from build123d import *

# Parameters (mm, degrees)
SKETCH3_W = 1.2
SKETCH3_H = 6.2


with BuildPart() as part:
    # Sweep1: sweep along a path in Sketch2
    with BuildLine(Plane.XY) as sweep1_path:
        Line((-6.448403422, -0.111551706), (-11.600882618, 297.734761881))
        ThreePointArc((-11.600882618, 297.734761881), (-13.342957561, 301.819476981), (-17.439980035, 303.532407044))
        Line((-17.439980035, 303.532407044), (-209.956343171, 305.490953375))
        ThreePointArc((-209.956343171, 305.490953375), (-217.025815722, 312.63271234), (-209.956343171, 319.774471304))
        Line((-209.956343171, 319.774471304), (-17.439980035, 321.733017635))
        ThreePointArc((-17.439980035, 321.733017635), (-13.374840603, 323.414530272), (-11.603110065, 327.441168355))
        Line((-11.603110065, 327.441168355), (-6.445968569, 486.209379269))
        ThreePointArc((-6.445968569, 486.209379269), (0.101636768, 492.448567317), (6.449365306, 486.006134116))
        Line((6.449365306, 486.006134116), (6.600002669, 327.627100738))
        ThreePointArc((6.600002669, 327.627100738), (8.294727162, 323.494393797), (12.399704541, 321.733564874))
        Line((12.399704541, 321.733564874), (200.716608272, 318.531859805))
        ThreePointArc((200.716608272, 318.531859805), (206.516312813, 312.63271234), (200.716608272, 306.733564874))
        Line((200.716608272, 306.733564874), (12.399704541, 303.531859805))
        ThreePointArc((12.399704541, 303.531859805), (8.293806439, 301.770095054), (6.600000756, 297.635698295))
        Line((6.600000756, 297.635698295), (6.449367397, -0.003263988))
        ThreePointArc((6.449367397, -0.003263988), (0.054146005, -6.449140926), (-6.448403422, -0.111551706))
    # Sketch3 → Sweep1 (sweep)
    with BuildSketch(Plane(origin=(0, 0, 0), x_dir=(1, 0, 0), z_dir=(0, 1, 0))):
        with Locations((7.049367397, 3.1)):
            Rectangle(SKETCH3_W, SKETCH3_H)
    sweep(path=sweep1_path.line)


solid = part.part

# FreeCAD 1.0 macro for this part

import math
import FreeCAD as App
import Part
import Sketcher
Q = App.Units.Quantity

doc = App.newDocument("Part")
body = doc.addObject("PartDesign::Body", "Body")

sketch1 = body.newObject("Sketcher::SketchObject", "Sketch")
sketch1.AttachmentSupport = (doc.getObject("XZ_Plane"), [""])
sketch1.MapMode = "FlatFace"
sketch1.addGeometry(Part.LineSegment(App.Vector(6.4, -6.2, 0), App.Vector(6.4, 0, 0)), False)
sketch1.addGeometry(Part.LineSegment(App.Vector(6.4, 0, 0), App.Vector(7.6, 0, 0)), False)
sketch1.addGeometry(Part.LineSegment(App.Vector(7.6, 0, 0), App.Vector(7.6, -6.2, 0)), False)
sketch1.addGeometry(Part.LineSegment(App.Vector(7.6, -6.2, 0), App.Vector(6.4, -6.2, 0)), False)
sketch1.addConstraint(Sketcher.Constraint("Coincident", 0, 2, 1, 1))
sketch1.addConstraint(Sketcher.Constraint("Coincident", 1, 2, 2, 1))
sketch1.addConstraint(Sketcher.Constraint("Coincident", 2, 2, 3, 1))
sketch1.addConstraint(Sketcher.Constraint("Coincident", 3, 2, 0, 1))
sketch1.addConstraint(Sketcher.Constraint("Vertical", 0))
sketch1.addConstraint(Sketcher.Constraint("Horizontal", 1))
sketch1.addConstraint(Sketcher.Constraint("Vertical", 2))
sketch1.addConstraint(Sketcher.Constraint("Horizontal", 3))
sketch1.addConstraint(Sketcher.Constraint("PointOnObject", 0, 2, -1))
sketch1.addConstraint(Sketcher.Constraint("DistanceX", 1, 1, 1, 2, Q("1.2 mm")))
sketch1.addConstraint(Sketcher.Constraint("DistanceY", 0, 1, 0, 2, Q("6.2 mm")))
sketch1.addConstraint(Sketcher.Constraint("DistanceX", -1, 1, 0, 2, Q("6.449367 mm")))

sketch2 = body.newObject("Sketcher::SketchObject", "Sketch001")
sketch2.AttachmentSupport = (doc.getObject("XY_Plane"), [""])
sketch2.MapMode = "FlatFace"
sketch2.addGeometry(Part.LineSegment(App.Vector(-6, 0, 0), App.Vector(-12, 298, 0)), False)
sketch2.addGeometry(Part.ArcOfCircle(Part.Circle(App.Vector(-17, 298, 0), App.Vector(0, 0, 1), 6), math.radians(1), math.radians(89)), False)
sketch2.addGeometry(Part.LineSegment(App.Vector(-17, 304, 0), App.Vector(-210, 305, 0)), False)
sketch2.addGeometry(Part.ArcOfCircle(Part.Circle(App.Vector(-210, 313, 0), App.Vector(0, 0, 1), 7), math.radians(91), math.radians(269)), False)
sketch2.addGeometry(Part.LineSegment(App.Vector(-210, 320, 0), App.Vector(-17, 322, 0)), False)
sketch2.addGeometry(Part.ArcOfCircle(Part.Circle(App.Vector(-17, 328, 0), App.Vector(0, 0, 1), 6), math.radians(-89), math.radians(-2)), False)
sketch2.addGeometry(Part.LineSegment(App.Vector(-12, 327, 0), App.Vector(-6, 486, 0)), False)
sketch2.addGeometry(Part.ArcOfCircle(Part.Circle(App.Vector(0, 486, 0), App.Vector(0, 0, 1), 6), math.radians(0), math.radians(178)), False)
sketch2.addGeometry(Part.LineSegment(App.Vector(6, 486, 0), App.Vector(7, 328, 0)), False)
sketch2.addGeometry(Part.ArcOfCircle(Part.Circle(App.Vector(12, 328, 0), App.Vector(0, 0, 1), 6), math.radians(-180), math.radians(-91)), False)
sketch2.addGeometry(Part.LineSegment(App.Vector(12, 322, 0), App.Vector(201, 319, 0)), False)
sketch2.addGeometry(Part.ArcOfCircle(Part.Circle(App.Vector(201, 313, 0), App.Vector(0, 0, 1), 6), math.radians(-89), math.radians(89)), False)
sketch2.addGeometry(Part.LineSegment(App.Vector(201, 307, 0), App.Vector(12, 304, 0)), False)
sketch2.addGeometry(Part.ArcOfCircle(Part.Circle(App.Vector(12, 298, 0), App.Vector(0, 0, 1), 6), math.radians(91), math.radians(180)), False)
sketch2.addGeometry(Part.LineSegment(App.Vector(7, 298, 0), App.Vector(6, 0, 0)), False)
sketch2.addGeometry(Part.ArcOfCircle(Part.Circle(App.Vector(0, 0, 0), App.Vector(0, 0, 1), 6), math.radians(-179), math.radians(0)), False)
sketch2.addConstraint(Sketcher.Constraint("Tangent", 0, 2, 1, 1))
sketch2.addConstraint(Sketcher.Constraint("Tangent", 1, 2, 2, 1))
sketch2.addConstraint(Sketcher.Constraint("Tangent", 2, 2, 3, 2))
sketch2.addConstraint(Sketcher.Constraint("Tangent", 3, 1, 4, 1))
sketch2.addConstraint(Sketcher.Constraint("Tangent", 4, 2, 5, 1))
sketch2.addConstraint(Sketcher.Constraint("Tangent", 5, 2, 6, 1))
sketch2.addConstraint(Sketcher.Constraint("Tangent", 6, 2, 7, 2))
sketch2.addConstraint(Sketcher.Constraint("Tangent", 7, 1, 8, 1))
sketch2.addConstraint(Sketcher.Constraint("Tangent", 8, 2, 9, 1))
sketch2.addConstraint(Sketcher.Constraint("Tangent", 9, 2, 10, 1))
sketch2.addConstraint(Sketcher.Constraint("Tangent", 10, 2, 11, 2))
sketch2.addConstraint(Sketcher.Constraint("Tangent", 11, 1, 12, 1))
sketch2.addConstraint(Sketcher.Constraint("Tangent", 12, 2, 13, 1))
sketch2.addConstraint(Sketcher.Constraint("Tangent", 13, 2, 14, 1))
sketch2.addConstraint(Sketcher.Constraint("Tangent", 14, 2, 15, 2))
sketch2.addConstraint(Sketcher.Constraint("Tangent", 15, 1, 0, 1))
sketch2.addConstraint(Sketcher.Constraint("Coincident", 15, 3, -1, 1))
sketch2.addConstraint(Sketcher.Constraint("Equal", 1, 5))
sketch2.addConstraint(Sketcher.Constraint("Equal", 5, 9))
sketch2.addConstraint(Sketcher.Constraint("Equal", 9, 11))
sketch2.addConstraint(Sketcher.Constraint("Equal", 11, 13))
sketch2.addConstraint(Sketcher.Constraint("Equal", 7, 15))
sketch2.addConstraint(Sketcher.Constraint("PointOnObject", 7, 3, -2))
sketch2.addConstraint(Sketcher.Constraint("Horizontal", 5, 3, 9, 3))
sketch2.addConstraint(Sketcher.Constraint("Horizontal", 3, 3, 11, 3))
sketch2.addConstraint(Sketcher.Constraint("Horizontal", 1, 3, 13, 3))
sketch2.addConstraint(Sketcher.Constraint("Vertical", 1, 3, 5, 3))
sketch2.addConstraint(Sketcher.Constraint("Vertical", 9, 3, 13, 3))
sketch2.addConstraint(Sketcher.Constraint("Vertical", 2, 2, 3, 1))
sketch2.addConstraint(Sketcher.Constraint("Radius", 1, Q("5.9 mm")))
sketch2.addConstraint(Sketcher.Constraint("DistanceY", -1, 1, 7, 3, Q("486 mm")))
sketch2.addConstraint(Sketcher.Constraint("DistanceY", 1, 3, 3, 3, Q("15 mm")))
sketch2.addConstraint(Sketcher.Constraint("DistanceX", 5, 3, 9, 3, Q("30 mm")))
sketch2.addConstraint(Sketcher.Constraint("DistanceX", 1, 3, -1, 1, Q("17.5 mm")))
sketch2.addConstraint(Sketcher.Constraint("DistanceX", 3, 3, 11, 3, Q("410.5 mm")))
sketch2.addConstraint(Sketcher.Constraint("Radius", 3, Q("7.142129 mm")))
sketch2.addConstraint(Sketcher.Constraint("Radius", 7, Q("6.449368 mm")))
sketch2.addConstraint(Sketcher.Constraint("Distance", 14, Q("297.639 mm")))
sketch2.addConstraint(Sketcher.Constraint("Distance", 10, Q("188.344119 mm")))
doc.recompute()

additivepipe = body.newObject("PartDesign::AdditivePipe", "AdditivePipe")
additivepipe.Profile = sketch1
additivepipe.Spine = (sketch2, ["Edge1", "Edge2", "Edge3", "Edge4", "Edge5", "Edge6", "Edge7", "Edge8", "Edge9", "Edge10", "Edge11", "Edge12", "Edge13", "Edge14", "Edge15", "Edge16"])

doc.recompute()
